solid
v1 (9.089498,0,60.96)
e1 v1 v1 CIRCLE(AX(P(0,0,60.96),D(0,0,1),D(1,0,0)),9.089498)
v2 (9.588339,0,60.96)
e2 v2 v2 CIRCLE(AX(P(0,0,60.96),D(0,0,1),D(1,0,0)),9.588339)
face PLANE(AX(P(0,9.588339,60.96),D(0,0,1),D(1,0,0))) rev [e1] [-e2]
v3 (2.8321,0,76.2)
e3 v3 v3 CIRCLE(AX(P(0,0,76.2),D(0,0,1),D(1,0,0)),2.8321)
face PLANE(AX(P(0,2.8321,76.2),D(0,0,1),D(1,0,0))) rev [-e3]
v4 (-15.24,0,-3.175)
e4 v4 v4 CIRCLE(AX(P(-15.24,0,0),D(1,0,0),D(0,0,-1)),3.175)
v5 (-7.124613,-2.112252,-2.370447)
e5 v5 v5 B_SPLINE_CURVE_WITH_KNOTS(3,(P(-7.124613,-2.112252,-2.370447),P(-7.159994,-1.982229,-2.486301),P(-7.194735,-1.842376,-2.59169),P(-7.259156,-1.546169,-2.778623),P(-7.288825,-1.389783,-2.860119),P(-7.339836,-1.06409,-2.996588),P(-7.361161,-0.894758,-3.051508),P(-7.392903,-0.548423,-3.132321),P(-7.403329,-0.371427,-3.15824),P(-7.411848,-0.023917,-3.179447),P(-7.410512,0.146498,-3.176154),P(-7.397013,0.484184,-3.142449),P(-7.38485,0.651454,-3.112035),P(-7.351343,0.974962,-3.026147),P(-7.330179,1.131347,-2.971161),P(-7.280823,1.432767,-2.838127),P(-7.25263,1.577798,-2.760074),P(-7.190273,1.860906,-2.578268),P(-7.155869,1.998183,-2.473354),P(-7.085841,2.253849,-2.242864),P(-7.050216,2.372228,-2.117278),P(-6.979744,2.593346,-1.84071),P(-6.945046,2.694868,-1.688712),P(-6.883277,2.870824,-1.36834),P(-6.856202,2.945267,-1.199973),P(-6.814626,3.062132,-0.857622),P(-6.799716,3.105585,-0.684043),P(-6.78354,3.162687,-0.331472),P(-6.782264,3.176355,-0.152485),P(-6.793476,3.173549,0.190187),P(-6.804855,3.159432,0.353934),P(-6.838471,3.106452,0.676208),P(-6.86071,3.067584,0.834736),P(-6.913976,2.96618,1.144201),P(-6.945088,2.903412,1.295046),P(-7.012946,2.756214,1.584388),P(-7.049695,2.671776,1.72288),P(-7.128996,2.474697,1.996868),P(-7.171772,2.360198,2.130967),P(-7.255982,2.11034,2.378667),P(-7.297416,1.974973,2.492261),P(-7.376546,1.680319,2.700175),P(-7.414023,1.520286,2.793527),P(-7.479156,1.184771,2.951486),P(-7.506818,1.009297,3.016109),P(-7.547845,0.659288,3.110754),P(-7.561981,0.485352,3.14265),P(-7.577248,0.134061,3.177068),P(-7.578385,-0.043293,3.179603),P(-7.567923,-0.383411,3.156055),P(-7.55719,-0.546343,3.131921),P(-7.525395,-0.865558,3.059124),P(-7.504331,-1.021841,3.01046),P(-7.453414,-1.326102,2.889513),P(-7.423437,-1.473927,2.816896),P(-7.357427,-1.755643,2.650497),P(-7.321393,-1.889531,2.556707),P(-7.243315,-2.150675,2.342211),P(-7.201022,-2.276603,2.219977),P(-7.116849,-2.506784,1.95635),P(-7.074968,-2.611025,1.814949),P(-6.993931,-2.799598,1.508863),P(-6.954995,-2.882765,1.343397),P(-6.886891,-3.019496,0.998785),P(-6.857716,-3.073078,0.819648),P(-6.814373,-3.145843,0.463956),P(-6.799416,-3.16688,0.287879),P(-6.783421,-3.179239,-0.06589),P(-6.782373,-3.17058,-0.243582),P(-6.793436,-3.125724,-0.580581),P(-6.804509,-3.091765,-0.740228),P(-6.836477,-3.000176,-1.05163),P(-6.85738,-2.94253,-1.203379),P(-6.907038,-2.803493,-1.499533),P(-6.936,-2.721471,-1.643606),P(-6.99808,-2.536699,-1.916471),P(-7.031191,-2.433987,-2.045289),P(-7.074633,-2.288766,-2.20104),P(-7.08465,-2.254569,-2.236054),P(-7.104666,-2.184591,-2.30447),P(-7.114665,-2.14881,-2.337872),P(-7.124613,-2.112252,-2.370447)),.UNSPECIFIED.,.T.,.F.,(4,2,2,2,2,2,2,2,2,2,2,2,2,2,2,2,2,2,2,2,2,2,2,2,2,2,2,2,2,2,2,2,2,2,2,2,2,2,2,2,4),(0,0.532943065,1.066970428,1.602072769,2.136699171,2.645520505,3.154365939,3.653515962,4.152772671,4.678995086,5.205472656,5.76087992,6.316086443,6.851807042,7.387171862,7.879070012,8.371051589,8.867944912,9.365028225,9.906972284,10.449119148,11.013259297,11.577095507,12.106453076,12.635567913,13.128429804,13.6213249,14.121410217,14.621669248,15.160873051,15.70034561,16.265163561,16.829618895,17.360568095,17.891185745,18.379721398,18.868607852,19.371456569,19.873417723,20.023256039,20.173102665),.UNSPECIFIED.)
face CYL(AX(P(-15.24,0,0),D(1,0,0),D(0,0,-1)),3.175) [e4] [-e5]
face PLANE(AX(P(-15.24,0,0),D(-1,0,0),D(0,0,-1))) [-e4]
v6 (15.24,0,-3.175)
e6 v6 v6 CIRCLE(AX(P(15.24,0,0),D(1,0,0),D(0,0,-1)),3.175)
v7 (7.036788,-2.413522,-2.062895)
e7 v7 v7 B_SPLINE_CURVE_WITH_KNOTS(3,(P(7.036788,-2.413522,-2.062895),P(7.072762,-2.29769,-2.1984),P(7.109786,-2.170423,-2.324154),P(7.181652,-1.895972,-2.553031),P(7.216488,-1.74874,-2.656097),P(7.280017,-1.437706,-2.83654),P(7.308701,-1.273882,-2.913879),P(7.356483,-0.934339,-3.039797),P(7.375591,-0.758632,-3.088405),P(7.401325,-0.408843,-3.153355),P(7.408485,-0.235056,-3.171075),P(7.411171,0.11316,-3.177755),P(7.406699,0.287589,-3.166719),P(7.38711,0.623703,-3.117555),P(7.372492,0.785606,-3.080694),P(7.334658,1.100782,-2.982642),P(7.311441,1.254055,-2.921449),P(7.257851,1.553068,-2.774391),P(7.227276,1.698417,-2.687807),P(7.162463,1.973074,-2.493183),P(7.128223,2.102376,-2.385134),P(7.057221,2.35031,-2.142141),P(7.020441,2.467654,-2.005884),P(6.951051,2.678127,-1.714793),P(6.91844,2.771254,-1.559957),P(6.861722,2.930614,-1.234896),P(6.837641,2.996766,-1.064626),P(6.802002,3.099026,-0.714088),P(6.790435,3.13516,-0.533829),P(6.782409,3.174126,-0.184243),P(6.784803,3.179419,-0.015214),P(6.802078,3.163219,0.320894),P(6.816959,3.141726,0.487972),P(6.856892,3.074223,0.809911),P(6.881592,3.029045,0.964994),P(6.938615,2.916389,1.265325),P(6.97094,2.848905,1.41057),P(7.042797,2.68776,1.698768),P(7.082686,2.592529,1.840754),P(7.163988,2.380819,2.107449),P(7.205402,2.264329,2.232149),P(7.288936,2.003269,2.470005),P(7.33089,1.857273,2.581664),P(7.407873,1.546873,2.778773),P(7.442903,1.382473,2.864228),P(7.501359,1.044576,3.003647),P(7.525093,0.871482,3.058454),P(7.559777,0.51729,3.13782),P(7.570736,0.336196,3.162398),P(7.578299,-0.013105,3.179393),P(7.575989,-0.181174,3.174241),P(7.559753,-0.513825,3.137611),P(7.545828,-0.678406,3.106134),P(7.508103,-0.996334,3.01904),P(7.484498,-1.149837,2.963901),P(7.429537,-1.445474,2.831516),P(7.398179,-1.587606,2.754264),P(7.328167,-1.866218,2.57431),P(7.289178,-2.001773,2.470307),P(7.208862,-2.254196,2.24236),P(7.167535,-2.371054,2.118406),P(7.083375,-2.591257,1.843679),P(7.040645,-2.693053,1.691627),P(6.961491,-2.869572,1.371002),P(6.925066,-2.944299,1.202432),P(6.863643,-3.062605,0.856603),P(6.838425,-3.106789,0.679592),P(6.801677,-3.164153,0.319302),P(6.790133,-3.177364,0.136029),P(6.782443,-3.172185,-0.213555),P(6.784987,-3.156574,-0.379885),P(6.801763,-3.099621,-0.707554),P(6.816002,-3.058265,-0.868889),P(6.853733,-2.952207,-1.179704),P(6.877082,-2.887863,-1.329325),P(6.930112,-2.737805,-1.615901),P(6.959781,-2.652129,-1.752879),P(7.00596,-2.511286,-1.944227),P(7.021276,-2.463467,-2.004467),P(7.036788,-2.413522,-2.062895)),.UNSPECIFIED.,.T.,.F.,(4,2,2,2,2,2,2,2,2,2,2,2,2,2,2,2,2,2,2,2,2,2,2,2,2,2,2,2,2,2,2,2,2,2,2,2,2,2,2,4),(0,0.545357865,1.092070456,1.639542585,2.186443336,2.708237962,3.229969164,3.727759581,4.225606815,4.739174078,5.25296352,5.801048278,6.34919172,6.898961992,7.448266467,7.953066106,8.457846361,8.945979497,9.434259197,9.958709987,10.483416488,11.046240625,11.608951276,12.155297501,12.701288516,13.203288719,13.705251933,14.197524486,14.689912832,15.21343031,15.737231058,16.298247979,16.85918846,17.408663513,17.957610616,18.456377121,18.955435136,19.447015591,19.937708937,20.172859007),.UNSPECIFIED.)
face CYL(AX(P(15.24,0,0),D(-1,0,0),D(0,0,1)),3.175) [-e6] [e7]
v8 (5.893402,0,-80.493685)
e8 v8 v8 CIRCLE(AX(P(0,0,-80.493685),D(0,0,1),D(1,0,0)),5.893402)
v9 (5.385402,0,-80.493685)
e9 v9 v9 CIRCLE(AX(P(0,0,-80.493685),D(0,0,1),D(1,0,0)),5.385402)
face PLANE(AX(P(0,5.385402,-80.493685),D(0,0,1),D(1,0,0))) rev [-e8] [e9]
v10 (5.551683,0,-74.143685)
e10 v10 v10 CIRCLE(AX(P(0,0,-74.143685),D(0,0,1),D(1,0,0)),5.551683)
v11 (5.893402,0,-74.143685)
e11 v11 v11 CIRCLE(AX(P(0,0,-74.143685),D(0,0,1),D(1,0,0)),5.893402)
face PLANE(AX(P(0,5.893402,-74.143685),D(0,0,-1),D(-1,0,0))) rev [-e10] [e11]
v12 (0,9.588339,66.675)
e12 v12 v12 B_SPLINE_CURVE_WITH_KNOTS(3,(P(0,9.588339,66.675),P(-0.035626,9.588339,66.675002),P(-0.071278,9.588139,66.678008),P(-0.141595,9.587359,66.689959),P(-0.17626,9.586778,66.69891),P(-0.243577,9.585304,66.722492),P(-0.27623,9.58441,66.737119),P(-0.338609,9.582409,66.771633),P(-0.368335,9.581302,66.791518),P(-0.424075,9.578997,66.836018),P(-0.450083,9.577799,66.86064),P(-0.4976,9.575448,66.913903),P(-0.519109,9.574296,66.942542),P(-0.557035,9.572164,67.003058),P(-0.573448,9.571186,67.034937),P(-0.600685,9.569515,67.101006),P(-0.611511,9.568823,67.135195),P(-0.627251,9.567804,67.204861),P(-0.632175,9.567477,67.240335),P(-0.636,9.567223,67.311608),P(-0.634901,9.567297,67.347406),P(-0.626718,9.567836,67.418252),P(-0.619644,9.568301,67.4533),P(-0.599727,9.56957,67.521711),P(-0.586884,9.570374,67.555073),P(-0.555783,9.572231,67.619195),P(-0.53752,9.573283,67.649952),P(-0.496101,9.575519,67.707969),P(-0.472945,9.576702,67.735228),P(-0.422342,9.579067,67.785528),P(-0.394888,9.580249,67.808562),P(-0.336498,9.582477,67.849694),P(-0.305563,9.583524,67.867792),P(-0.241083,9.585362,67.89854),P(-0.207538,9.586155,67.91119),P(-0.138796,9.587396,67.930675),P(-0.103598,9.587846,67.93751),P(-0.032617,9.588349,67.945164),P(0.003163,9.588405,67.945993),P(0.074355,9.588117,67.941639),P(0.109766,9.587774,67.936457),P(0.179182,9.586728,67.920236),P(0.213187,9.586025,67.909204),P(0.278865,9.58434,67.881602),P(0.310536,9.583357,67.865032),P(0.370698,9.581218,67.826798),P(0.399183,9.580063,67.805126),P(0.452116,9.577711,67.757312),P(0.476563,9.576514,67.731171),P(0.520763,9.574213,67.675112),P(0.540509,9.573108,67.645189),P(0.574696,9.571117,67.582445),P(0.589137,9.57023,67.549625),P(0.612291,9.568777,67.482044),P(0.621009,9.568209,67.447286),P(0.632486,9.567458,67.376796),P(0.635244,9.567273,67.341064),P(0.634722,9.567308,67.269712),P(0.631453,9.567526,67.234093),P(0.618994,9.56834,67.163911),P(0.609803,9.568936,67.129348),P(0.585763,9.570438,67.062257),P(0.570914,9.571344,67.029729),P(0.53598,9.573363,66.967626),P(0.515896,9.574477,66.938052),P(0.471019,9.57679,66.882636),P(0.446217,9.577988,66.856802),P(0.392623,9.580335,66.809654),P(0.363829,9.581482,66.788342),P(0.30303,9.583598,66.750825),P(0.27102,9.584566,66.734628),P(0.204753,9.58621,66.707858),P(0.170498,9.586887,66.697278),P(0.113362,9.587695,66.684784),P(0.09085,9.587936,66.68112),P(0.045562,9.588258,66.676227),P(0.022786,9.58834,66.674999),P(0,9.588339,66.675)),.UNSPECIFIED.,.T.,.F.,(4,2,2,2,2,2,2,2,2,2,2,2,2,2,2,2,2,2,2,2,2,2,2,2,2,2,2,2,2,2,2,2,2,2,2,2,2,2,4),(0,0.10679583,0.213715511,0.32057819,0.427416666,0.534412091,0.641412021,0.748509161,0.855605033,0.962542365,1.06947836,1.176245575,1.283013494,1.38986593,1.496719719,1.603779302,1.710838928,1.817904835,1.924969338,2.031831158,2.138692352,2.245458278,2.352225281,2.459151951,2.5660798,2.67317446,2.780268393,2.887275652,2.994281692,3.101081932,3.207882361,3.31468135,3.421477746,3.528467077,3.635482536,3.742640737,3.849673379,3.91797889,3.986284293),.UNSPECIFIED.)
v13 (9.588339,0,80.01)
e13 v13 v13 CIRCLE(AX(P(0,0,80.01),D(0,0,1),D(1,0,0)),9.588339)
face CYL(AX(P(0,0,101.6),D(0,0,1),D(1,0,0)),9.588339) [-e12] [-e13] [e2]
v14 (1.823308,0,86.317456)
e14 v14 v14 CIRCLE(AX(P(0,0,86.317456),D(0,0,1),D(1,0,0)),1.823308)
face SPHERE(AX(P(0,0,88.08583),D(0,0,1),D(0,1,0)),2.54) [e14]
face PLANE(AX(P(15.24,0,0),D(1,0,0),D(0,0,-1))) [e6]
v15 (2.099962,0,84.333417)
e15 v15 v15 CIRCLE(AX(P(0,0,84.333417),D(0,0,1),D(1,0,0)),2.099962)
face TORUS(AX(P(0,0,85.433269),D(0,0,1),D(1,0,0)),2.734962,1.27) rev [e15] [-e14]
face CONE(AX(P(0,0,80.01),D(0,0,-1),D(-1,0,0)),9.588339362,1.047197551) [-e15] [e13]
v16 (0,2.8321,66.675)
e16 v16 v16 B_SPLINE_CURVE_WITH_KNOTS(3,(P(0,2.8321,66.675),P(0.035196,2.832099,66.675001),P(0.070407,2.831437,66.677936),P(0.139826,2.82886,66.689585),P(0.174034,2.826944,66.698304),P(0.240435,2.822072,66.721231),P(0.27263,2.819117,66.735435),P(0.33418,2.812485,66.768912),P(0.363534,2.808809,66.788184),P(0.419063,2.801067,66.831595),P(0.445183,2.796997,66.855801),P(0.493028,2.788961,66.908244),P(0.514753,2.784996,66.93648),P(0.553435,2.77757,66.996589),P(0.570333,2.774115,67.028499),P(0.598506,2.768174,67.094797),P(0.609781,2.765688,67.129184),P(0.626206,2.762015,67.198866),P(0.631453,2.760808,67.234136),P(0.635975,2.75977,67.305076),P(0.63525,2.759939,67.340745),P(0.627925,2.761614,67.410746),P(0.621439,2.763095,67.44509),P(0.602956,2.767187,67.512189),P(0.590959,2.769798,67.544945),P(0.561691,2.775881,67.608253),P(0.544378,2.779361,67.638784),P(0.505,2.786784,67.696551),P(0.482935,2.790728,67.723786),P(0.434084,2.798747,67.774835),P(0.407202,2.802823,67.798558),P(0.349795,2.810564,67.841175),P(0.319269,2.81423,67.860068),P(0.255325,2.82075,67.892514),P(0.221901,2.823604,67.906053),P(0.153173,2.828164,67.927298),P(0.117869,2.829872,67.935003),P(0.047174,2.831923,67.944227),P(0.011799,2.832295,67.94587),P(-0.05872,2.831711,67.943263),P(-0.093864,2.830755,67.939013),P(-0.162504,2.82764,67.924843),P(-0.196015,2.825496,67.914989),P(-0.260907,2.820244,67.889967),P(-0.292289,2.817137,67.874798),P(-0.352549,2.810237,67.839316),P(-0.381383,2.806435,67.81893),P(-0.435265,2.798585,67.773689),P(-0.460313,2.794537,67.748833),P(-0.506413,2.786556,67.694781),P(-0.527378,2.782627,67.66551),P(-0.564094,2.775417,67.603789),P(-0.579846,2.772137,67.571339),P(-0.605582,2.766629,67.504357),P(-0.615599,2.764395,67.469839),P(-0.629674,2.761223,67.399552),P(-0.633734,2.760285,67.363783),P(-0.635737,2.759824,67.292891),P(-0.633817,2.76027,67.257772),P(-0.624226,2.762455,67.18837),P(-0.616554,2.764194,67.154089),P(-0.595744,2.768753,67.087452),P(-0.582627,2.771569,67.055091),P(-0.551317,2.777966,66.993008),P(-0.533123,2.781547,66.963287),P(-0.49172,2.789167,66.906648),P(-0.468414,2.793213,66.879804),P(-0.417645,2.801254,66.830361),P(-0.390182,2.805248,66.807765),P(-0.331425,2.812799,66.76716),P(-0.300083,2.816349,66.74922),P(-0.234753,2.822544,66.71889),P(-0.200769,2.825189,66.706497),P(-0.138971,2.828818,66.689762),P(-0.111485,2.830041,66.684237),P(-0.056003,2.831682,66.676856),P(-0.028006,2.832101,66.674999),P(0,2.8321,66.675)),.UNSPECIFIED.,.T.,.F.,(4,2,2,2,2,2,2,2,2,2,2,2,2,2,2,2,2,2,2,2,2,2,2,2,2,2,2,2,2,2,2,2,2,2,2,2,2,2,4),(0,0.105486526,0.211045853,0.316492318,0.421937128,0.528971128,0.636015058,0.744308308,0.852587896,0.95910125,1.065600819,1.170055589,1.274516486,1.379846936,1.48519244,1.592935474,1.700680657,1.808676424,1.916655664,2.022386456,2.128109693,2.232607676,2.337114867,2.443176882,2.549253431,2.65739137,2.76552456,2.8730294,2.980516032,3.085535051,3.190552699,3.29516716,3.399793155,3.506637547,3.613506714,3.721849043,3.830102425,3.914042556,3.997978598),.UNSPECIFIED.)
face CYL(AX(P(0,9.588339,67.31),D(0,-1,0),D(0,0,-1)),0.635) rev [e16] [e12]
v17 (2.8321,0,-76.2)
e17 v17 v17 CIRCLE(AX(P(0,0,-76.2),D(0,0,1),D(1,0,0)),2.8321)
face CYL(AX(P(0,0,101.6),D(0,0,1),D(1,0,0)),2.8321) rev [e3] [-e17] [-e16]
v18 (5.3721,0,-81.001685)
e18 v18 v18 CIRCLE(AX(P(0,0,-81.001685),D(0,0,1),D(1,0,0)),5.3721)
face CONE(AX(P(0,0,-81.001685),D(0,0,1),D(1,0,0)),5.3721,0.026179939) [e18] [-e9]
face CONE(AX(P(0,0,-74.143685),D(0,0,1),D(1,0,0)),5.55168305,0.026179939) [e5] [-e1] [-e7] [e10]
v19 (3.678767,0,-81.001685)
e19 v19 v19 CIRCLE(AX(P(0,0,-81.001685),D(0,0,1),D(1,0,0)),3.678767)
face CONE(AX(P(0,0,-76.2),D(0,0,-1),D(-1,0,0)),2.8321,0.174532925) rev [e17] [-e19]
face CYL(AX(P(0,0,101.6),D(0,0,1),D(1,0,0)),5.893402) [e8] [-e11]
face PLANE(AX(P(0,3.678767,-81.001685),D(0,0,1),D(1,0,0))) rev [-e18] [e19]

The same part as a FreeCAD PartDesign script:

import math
import FreeCAD as App
import Part
import Sketcher
Q = App.Units.Quantity

doc = App.newDocument("Part")
body = doc.addObject("PartDesign::Body", "Body")

# Sketch on YZ plane
sketch1 = doc.addObject("Sketcher::SketchObject", "Sketch")
body.addObject(sketch1)
sketch1.AttachmentSupport = (doc.YZ_Plane, [""])
sketch1.MapMode = "FlatFace"
sketch1.addGeometry(Part.LineSegment(App.Vector(2.8321, 76.2, 0), App.Vector(2.8321, -76.2, 0)), False)
sketch1.addGeometry(Part.LineSegment(App.Vector(2.8321, -76.2, 0), App.Vector(3.678767, -81.001685, 0)), False)
sketch1.addGeometry(Part.LineSegment(App.Vector(3.678767, -81.001685, 0), App.Vector(5.3721, -81.001685, 0)), False)
sketch1.addGeometry(Part.LineSegment(App.Vector(5.3721, -81.001685, 0), App.Vector(5.385402, -80.493685, 0)), False)
sketch1.addGeometry(Part.LineSegment(App.Vector(5.385402, -80.493685, 0), App.Vector(5.893402, -80.493685, 0)), False)
sketch1.addGeometry(Part.LineSegment(App.Vector(5.893402, -80.493685, 0), App.Vector(5.893402, -74.143685, 0)), False)
sketch1.addGeometry(Part.LineSegment(App.Vector(5.893402, -74.143685, 0), App.Vector(5.551683, -74.143685, 0)), False)
sketch1.addGeometry(Part.LineSegment(App.Vector(5.551683, -74.143685, 0), App.Vector(9.089498, 60.96, 0)), False)
sketch1.addGeometry(Part.LineSegment(App.Vector(9.089498, 60.96, 0), App.Vector(9.588339, 60.96, 0)), False)
sketch1.addGeometry(Part.LineSegment(App.Vector(9.588339, 60.96, 0), App.Vector(9.588339, 80.01, 0)), False)
sketch1.addGeometry(Part.LineSegment(App.Vector(9.588339, 80.01, 0), App.Vector(2.099962, 84.333417, 0)), False)
sketch1.addGeometry(Part.ArcOfCircle(Part.Circle(App.Vector(2.734962, 85.433269, 0), App.Vector(0, 0, 1), 1.27), math.radians(135.876255), math.radians(240)), False)
sketch1.addGeometry(Part.ArcOfCircle(Part.Circle(App.Vector(0, 88.08583, 0), App.Vector(0, 0, 1), 2.54), math.radians(-44.123745), math.radians(90)), False)
sketch1.addGeometry(Part.LineSegment(App.Vector(0, 90.62583, 0), App.Vector(0, 76.2, 0)), False)
sketch1.addGeometry(Part.LineSegment(App.Vector(0, 76.2, 0), App.Vector(2.8321, 76.2, 0)), False)
sketch1.addConstraint(Sketcher.Constraint("Coincident", 0, 2, 1, 1))
sketch1.addConstraint(Sketcher.Constraint("Coincident", 1, 2, 2, 1))
sketch1.addConstraint(Sketcher.Constraint("Coincident", 2, 2, 3, 1))
sketch1.addConstraint(Sketcher.Constraint("Coincident", 3, 2, 4, 1))
sketch1.addConstraint(Sketcher.Constraint("Coincident", 4, 2, 5, 1))
sketch1.addConstraint(Sketcher.Constraint("Coincident", 5, 2, 6, 1))
sketch1.addConstraint(Sketcher.Constraint("Coincident", 6, 2, 7, 1))
sketch1.addConstraint(Sketcher.Constraint("Coincident", 7, 2, 8, 1))
sketch1.addConstraint(Sketcher.Constraint("Coincident", 8, 2, 9, 1))
sketch1.addConstraint(Sketcher.Constraint("Coincident", 9, 2, 10, 1))
sketch1.addConstraint(Sketcher.Constraint("Tangent", 10, 2, 11, 2))
sketch1.addConstraint(Sketcher.Constraint("Tangent", 11, 1, 12, 1))
sketch1.addConstraint(Sketcher.Constraint("Coincident", 12, 2, 13, 1))
sketch1.addConstraint(Sketcher.Constraint("Coincident", 13, 2, 14, 1))
sketch1.addConstraint(Sketcher.Constraint("Coincident", 14, 2, 0, 1))
sketch1.addConstraint(Sketcher.Constraint("Vertical", 0))
sketch1.addConstraint(Sketcher.Constraint("Horizontal", 2))
sketch1.addConstraint(Sketcher.Constraint("Horizontal", 4))
sketch1.addConstraint(Sketcher.Constraint("Vertical", 5))
sketch1.addConstraint(Sketcher.Constraint("Horizontal", 6))
sketch1.addConstraint(Sketcher.Constraint("Horizontal", 8))
sketch1.addConstraint(Sketcher.Constraint("Vertical", 9))
sketch1.addConstraint(Sketcher.Constraint("Vertical", 13))
sketch1.addConstraint(Sketcher.Constraint("Horizontal", 14))
sketch1.addConstraint(Sketcher.Constraint("PointOnObject", 12, 3, -2))
sketch1.addConstraint(Sketcher.Constraint("PointOnObject", 12, 2, -2))
sketch1.addConstraint(Sketcher.Constraint("Parallel", 3, 7))
sketch1.addConstraint(Sketcher.Constraint("Radius", 12, Q("0.1 in")))
sketch1.addConstraint(Sketcher.Constraint("DistanceY", 0, 2, 0, 1, Q("6 in")))
sketch1.addConstraint(Sketcher.Constraint("Radius", 11, Q("0.05 in")))
sketch1.addConstraint(Sketcher.Constraint("DistanceY", 0, 2, -1, 1, Q("3 in")))
sketch1.addConstraint(Sketcher.Constraint("Angle", 1, Q("-80 deg")))
sketch1.addConstraint(Sketcher.Constraint("Angle", 10, Q("150 deg")))
sketch1.addConstraint(Sketcher.Constraint("DistanceX", 4, 1, 4, 2, Q("0.02 in")))
sketch1.addConstraint(Sketcher.Constraint("DistanceY", 5, 1, 5, 2, Q("0.25 in")))
sketch1.addConstraint(Sketcher.Constraint("DistanceY", 9, 1, 9, 2, Q("0.75 in")))
sketch1.addConstraint(Sketcher.Constraint("DistanceY", -1, 1, 7, 2, Q("2.4 in")))
sketch1.addConstraint(Sketcher.Constraint("Angle", 3, Q("88.5 deg")))
sketch1.addConstraint(Sketcher.Constraint("DistanceX", 0, 2, 2, 2, Q("0.1 in")))
sketch1.addConstraint(Sketcher.Constraint("DistanceY", 2, 2, 3, 2, Q("0.02 in")))
sketch1.addConstraint(Sketcher.Constraint("DistanceX", 14, 1, 14, 2, Q("0.1115 in")))
sketch1.addConstraint(Sketcher.Constraint("DistanceX", 6, 2, 6, 1, Q("0.341719 mm")))
sketch1.addConstraint(Sketcher.Constraint("DistanceX", 8, 1, 8, 2, Q("0.498842 mm")))
sketch1.addConstraint(Sketcher.Constraint("DistanceY", 13, 2, 13, 1, Q("14.42583 mm")))
sketch1.addConstraint(Sketcher.Constraint("Distance", 1, Q("4.875759 mm")))
revolution = doc.addObject("PartDesign::Revolution", "Revolution")
body.addObject(revolution)
revolution.Profile = sketch1
revolution.ReferenceAxis = (sketch1, ["V_Axis"])
revolution.Angle = 360

# Sketch on YZ plane
sketch2 = doc.addObject("Sketcher::SketchObject", "Sketch001")
body.addObject(sketch2)
sketch2.AttachmentSupport = (doc.YZ_Plane, [""])
sketch2.MapMode = "FlatFace"
sketch2.AttachmentOffset = App.Placement(App.Vector(0, 0, 0.4 * 25.4), App.Rotation())
sketch2.addGeometry(Part.Circle(App.Vector(0, 0, 0), App.Vector(0, 0, 1), 3.175), False)
sketch2.addConstraint(Sketcher.Constraint("Coincident", 0, 3, -1, 1))
sketch2.addConstraint(Sketcher.Constraint("Diameter", 0, Q("0.25 in")))
pad1 = doc.addObject("PartDesign::Pad", "Pad")
body.addObject(pad1)
pad1.Profile = sketch2
pad1.Length = Q("0.4 in")
pad1.Midplane = True
doc.recompute()

mirrored = doc.addObject("PartDesign::Mirrored", "Mirrored")
body.addObject(mirrored)
mirrored.Originals = [pad1]
mirrored.MirrorPlane = (doc.YZ_Plane, [""])
body.Tip = mirrored

# Sketch on XZ plane
sketch3 = doc.addObject("Sketcher::SketchObject", "Sketch002")
body.addObject(sketch3)
sketch3.AttachmentSupport = (doc.XZ_Plane, [""])
sketch3.MapMode = "FlatFace"
sketch3.addGeometry(Part.Circle(App.Vector(0, 67.31, 0), App.Vector(0, 0, 1), 0.635), False)
sketch3.addConstraint(Sketcher.Constraint("PointOnObject", 0, 3, -2))
sketch3.addConstraint(Sketcher.Constraint("Diameter", 0, Q("0.05 in")))
sketch3.addConstraint(Sketcher.Constraint("DistanceY", -1, 1, 0, 3, Q("2.65 in")))
pocket1 = doc.addObject("PartDesign::Pocket", "Pocket")
body.addObject(pocket1)
pocket1.Profile = sketch3
pocket1.Type = "ThroughAll"

doc.recompute()
